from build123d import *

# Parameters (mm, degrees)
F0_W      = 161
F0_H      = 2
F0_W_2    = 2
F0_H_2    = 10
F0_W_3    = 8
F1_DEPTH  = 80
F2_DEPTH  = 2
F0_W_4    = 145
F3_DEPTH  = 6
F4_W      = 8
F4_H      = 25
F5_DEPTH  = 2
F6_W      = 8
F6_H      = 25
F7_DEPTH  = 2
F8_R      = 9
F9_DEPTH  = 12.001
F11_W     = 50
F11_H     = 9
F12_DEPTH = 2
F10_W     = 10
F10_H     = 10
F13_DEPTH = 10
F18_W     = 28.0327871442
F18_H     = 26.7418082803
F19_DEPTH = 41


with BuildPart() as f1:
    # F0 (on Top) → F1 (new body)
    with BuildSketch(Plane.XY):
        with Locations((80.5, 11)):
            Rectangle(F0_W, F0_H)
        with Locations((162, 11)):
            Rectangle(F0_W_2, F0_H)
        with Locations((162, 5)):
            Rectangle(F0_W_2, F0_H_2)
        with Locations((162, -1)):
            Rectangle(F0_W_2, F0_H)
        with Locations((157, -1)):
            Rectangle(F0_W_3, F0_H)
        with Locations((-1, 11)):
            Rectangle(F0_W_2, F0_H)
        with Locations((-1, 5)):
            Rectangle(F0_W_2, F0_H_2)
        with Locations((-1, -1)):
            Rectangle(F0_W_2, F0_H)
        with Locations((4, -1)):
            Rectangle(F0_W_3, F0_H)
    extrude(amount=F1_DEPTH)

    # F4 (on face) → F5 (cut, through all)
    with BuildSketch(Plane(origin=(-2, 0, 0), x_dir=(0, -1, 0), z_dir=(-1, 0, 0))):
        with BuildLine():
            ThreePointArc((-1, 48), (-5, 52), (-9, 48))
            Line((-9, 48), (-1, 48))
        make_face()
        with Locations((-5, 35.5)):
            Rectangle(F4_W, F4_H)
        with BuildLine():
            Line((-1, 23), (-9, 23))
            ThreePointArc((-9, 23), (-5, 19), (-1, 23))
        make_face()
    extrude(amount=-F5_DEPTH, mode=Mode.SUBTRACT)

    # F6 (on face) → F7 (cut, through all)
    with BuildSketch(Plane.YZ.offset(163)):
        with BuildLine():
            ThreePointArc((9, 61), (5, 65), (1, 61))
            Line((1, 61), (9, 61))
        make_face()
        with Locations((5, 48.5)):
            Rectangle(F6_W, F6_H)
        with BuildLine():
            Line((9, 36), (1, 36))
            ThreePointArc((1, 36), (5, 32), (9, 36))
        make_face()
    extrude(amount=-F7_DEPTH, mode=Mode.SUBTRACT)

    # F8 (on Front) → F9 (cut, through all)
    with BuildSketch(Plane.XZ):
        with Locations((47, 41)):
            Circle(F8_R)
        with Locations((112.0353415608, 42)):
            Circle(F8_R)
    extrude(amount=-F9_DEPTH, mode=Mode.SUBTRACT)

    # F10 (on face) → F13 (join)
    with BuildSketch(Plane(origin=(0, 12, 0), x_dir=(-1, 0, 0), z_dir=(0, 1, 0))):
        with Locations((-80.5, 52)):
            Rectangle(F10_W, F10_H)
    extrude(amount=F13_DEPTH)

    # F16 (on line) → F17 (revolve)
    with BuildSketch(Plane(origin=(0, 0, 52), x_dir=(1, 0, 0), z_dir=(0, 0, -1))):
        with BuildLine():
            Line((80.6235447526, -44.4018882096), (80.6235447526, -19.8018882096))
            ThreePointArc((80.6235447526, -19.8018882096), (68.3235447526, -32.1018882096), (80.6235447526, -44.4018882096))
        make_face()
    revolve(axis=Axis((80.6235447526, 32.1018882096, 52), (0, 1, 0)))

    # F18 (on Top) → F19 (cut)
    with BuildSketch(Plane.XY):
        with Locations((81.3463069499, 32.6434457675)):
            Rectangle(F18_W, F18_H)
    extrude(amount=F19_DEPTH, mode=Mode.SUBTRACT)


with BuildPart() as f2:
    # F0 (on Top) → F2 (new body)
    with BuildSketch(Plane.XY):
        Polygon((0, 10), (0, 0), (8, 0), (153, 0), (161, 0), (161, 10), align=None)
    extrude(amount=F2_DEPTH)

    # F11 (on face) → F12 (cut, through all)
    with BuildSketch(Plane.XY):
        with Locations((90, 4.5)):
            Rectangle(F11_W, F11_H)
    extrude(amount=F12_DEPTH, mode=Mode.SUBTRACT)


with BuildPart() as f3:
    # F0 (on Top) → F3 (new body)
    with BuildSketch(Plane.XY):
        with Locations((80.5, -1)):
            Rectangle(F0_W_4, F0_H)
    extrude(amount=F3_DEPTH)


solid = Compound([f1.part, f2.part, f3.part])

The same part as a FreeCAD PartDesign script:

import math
import FreeCAD as App
import Part
import Sketcher

V = App.Vector

doc = App.newDocument("Part")
body = doc.addObject("PartDesign::Body", "Body")

# Sketch on XY plane
sketch1 = body.newObject("Sketcher::SketchObject", "Sketch")
sketch1.AttachmentSupport = (doc.getObject("XY_Plane"), [""])
sketch1.MapMode = "FlatFace"
sketch1.addGeometry(Part.LineSegment(V(161, 10, 0), V(161, 0, 0)), False)
sketch1.addGeometry(Part.LineSegment(V(161, 0, 0), V(153, 0, 0)), False)
sketch1.addGeometry(Part.LineSegment(V(153, 0, 0), V(153, -2, 0)), False)
sketch1.addGeometry(Part.LineSegment(V(153, -2, 0), V(163, -2, 0)), False)
sketch1.addGeometry(Part.LineSegment(V(163, -2, 0), V(163, 12, 0)), False)
sketch1.addGeometry(Part.LineSegment(V(163, 12, 0), V(-2, 12, 0)), False)
sketch1.addGeometry(Part.LineSegment(V(-2, 12, 0), V(-2, -2, 0)), False)
sketch1.addGeometry(Part.LineSegment(V(-2, -2, 0), V(8, -2, 0)), False)
sketch1.addGeometry(Part.LineSegment(V(8, -2, 0), V(8, 0, 0)), False)
sketch1.addGeometry(Part.LineSegment(V(8, 0, 0), V(0, 0, 0)), False)
sketch1.addGeometry(Part.LineSegment(V(0, 0, 0), V(0, 10, 0)), False)
sketch1.addGeometry(Part.LineSegment(V(0, 10, 0), V(161, 10, 0)), False)
sketch1.addConstraint(Sketcher.Constraint("Coincident", 0, 2, 1, 1))
sketch1.addConstraint(Sketcher.Constraint("Coincident", 1, 2, 2, 1))
sketch1.addConstraint(Sketcher.Constraint("Coincident", 2, 2, 3, 1))
sketch1.addConstraint(Sketcher.Constraint("Coincident", 3, 2, 4, 1))
sketch1.addConstraint(Sketcher.Constraint("Coincident", 4, 2, 5, 1))
sketch1.addConstraint(Sketcher.Constraint("Coincident", 5, 2, 6, 1))
sketch1.addConstraint(Sketcher.Constraint("Coincident", 6, 2, 7, 1))
sketch1.addConstraint(Sketcher.Constraint("Coincident", 7, 2, 8, 1))
sketch1.addConstraint(Sketcher.Constraint("Coincident", 8, 2, 9, 1))
sketch1.addConstraint(Sketcher.Constraint("Coincident", 9, 2, 10, 1))
sketch1.addConstraint(Sketcher.Constraint("Coincident", 10, 2, 11, 1))
sketch1.addConstraint(Sketcher.Constraint("Coincident", 11, 2, 0, 1))
sketch1.addConstraint(Sketcher.Constraint("Vertical", 0))
sketch1.addConstraint(Sketcher.Constraint("Horizontal", 1))
sketch1.addConstraint(Sketcher.Constraint("Vertical", 2))
sketch1.addConstraint(Sketcher.Constraint("Horizontal", 3))
sketch1.addConstraint(Sketcher.Constraint("Vertical", 4))
sketch1.addConstraint(Sketcher.Constraint("Horizontal", 5))
sketch1.addConstraint(Sketcher.Constraint("Vertical", 6))
sketch1.addConstraint(Sketcher.Constraint("Horizontal", 7))
sketch1.addConstraint(Sketcher.Constraint("Vertical", 8))
sketch1.addConstraint(Sketcher.Constraint("Horizontal", 9))
sketch1.addConstraint(Sketcher.Constraint("Vertical", 10))
sketch1.addConstraint(Sketcher.Constraint("Horizontal", 11))
sketch1.addConstraint(Sketcher.Constraint("Coincident", 9, 2, -1, 1))
sketch1.addConstraint(Sketcher.Constraint("PointOnObject", 0, 2, -1))
sketch1.addConstraint(Sketcher.Constraint("Horizontal", 3, 2, 6, 2))
sketch1.addConstraint(Sketcher.Constraint("Equal", 3, 7))
sketch1.addConstraint(Sketcher.Constraint("Equal", 1, 9))
sketch1.addConstraint(Sketcher.Constraint("Equal", 7, 0))
sketch1.addConstraint(Sketcher.Constraint("DistanceX", 1, 2, 1, 1, 8.0))
sketch1.addConstraint(Sketcher.Constraint("DistanceX", 3, 1, 3, 2, 10.0))
sketch1.addConstraint(Sketcher.Constraint("DistanceX", 5, 2, 5, 1, 165.0))
sketch1.addConstraint(Sketcher.Constraint("DistanceY", 2, 2, 2, 1, 2.0))
sketch1.addConstraint(Sketcher.Constraint("DistanceY", 4, 1, 4, 2, 14.0))
pad1 = body.newObject("PartDesign::Pad", "Pad")
pad1.Profile = sketch1
pad1.Length = 80

# Sketch on YZ plane
sketch2 = body.newObject("Sketcher::SketchObject", "Sketch001")
sketch2.AttachmentSupport = (doc.getObject("YZ_Plane"), [""])
sketch2.MapMode = "FlatFace"
sketch2.AttachmentOffset = App.Placement(V(0, 0, -2), App.Rotation())
sketch2.addGeometry(Part.ArcOfCircle(Part.Circle(V(5, 48, 0), V(0, 0, 1), 4), math.radians(0), math.radians(180)), False)
sketch2.addGeometry(Part.LineSegment(V(9, 48, 0), V(9, 23, 0)), False)
sketch2.addGeometry(Part.ArcOfCircle(Part.Circle(V(5, 23, 0), V(0, 0, 1), 4), math.radians(180), math.radians(360)), False)
sketch2.addGeometry(Part.LineSegment(V(1, 23, 0), V(1, 48, 0)), False)
sketch2.addConstraint(Sketcher.Constraint("Tangent", 0, 1, 1, 1))
sketch2.addConstraint(Sketcher.Constraint("Tangent", 1, 2, 2, 2))
sketch2.addConstraint(Sketcher.Constraint("Tangent", 2, 1, 3, 1))
sketch2.addConstraint(Sketcher.Constraint("Tangent", 3, 2, 0, 2))
sketch2.addConstraint(Sketcher.Constraint("Vertical", 1))
sketch2.addConstraint(Sketcher.Constraint("Vertical", 3))
sketch2.addConstraint(Sketcher.Constraint("Radius", 0, 4.0))
sketch2.addConstraint(Sketcher.Constraint("DistanceY", 1, 2, 1, 1, 25.0))
sketch2.addConstraint(Sketcher.Constraint("DistanceX", -1, 1, 0, 3, 5.0))
sketch2.addConstraint(Sketcher.Constraint("DistanceY", -1, 1, 0, 3, 48.0))
pocket1 = body.newObject("PartDesign::Pocket", "Pocket")
pocket1.Profile = sketch2
pocket1.Length = 2
pocket1.Reversed = True

# Sketch on YZ plane
sketch3 = body.newObject("Sketcher::SketchObject", "Sketch002")
sketch3.AttachmentSupport = (doc.getObject("YZ_Plane"), [""])
sketch3.MapMode = "FlatFace"
sketch3.AttachmentOffset = App.Placement(V(0, 0, 163), App.Rotation())
sketch3.addGeometry(Part.ArcOfCircle(Part.Circle(V(5, 61, 0), V(0, 0, 1), 4), math.radians(0), math.radians(180)), False)
sketch3.addGeometry(Part.LineSegment(V(1, 61, 0), V(1, 36, 0)), False)
sketch3.addGeometry(Part.ArcOfCircle(Part.Circle(V(5, 36, 0), V(0, 0, 1), 4), math.radians(180), math.radians(360)), False)
sketch3.addGeometry(Part.LineSegment(V(9, 36, 0), V(9, 61, 0)), False)
sketch3.addConstraint(Sketcher.Constraint("Tangent", 0, 2, 1, 1))
sketch3.addConstraint(Sketcher.Constraint("Tangent", 1, 2, 2, 1))
sketch3.addConstraint(Sketcher.Constraint("Tangent", 2, 2, 3, 1))
sketch3.addConstraint(Sketcher.Constraint("Tangent", 3, 2, 0, 1))
sketch3.addConstraint(Sketcher.Constraint("Vertical", 1))
sketch3.addConstraint(Sketcher.Constraint("Vertical", 3))
sketch3.addConstraint(Sketcher.Constraint("Radius", 0, 4.0))
sketch3.addConstraint(Sketcher.Constraint("DistanceY", 1, 2, 1, 1, 25.0))
sketch3.addConstraint(Sketcher.Constraint("DistanceX", -1, 1, 0, 3, 5.0))
sketch3.addConstraint(Sketcher.Constraint("DistanceY", -1, 1, 0, 3, 61.0))
pocket2 = body.newObject("PartDesign::Pocket", "Pocket001")
pocket2.Profile = sketch3
pocket2.Length = 2

# Sketch on XZ plane
sketch4 = body.newObject("Sketcher::SketchObject", "Sketch003")
sketch4.AttachmentSupport = (doc.getObject("XZ_Plane"), [""])
sketch4.MapMode = "FlatFace"
sketch4.addGeometry(Part.Circle(V(47, 41, 0), V(0, 0, 1), 9), False)
sketch4.addGeometry(Part.Circle(V(112.035342, 42, 0), V(0, 0, 1), 9), False)
sketch4.addConstraint(Sketcher.Constraint("Equal", 0, 1))
sketch4.addConstraint(Sketcher.Constraint("Diameter", 0, 18.0))
sketch4.addConstraint(Sketcher.Constraint("DistanceX", -1, 1, 0, 3, 47.0))
sketch4.addConstraint(Sketcher.Constraint("DistanceY", -1, 1, 0, 3, 41.0))
sketch4.addConstraint(Sketcher.Constraint("DistanceY", -1, 1, 1, 3, 42.0))
sketch4.addConstraint(Sketcher.Constraint("DistanceX", -1, 1, 1, 3, 112.035342))
pocket3 = body.newObject("PartDesign::Pocket", "Pocket002")
pocket3.Profile = sketch4
pocket3.Type = "ThroughAll"

# Sketch on XZ plane
sketch5 = body.newObject("Sketcher::SketchObject", "Sketch004")
sketch5.AttachmentSupport = (doc.getObject("XZ_Plane"), [""])
sketch5.MapMode = "FlatFace"
sketch5.AttachmentOffset = App.Placement(V(0, 0, -12), App.Rotation())
sketch5.addGeometry(Part.LineSegment(V(85.5, 57, 0), V(85.5, 47, 0)), False)
sketch5.addGeometry(Part.LineSegment(V(85.5, 47, 0), V(75.5, 47, 0)), False)
sketch5.addGeometry(Part.LineSegment(V(75.5, 47, 0), V(75.5, 57, 0)), False)
sketch5.addGeometry(Part.LineSegment(V(75.5, 57, 0), V(85.5, 57, 0)), False)
sketch5.addConstraint(Sketcher.Constraint("Coincident", 0, 2, 1, 1))
sketch5.addConstraint(Sketcher.Constraint("Coincident", 1, 2, 2, 1))
sketch5.addConstraint(Sketcher.Constraint("Coincident", 2, 2, 3, 1))
sketch5.addConstraint(Sketcher.Constraint("Coincident", 3, 2, 0, 1))
sketch5.addConstraint(Sketcher.Constraint("Vertical", 0))
sketch5.addConstraint(Sketcher.Constraint("Horizontal", 1))
sketch5.addConstraint(Sketcher.Constraint("Vertical", 2))
sketch5.addConstraint(Sketcher.Constraint("Horizontal", 3))
sketch5.addConstraint(Sketcher.Constraint("Equal", 3, 0))
sketch5.addConstraint(Sketcher.Constraint("DistanceX", 1, 2, 1, 1, 10.0))
sketch5.addConstraint(Sketcher.Constraint("DistanceY", -1, 1, 0, 2, 47.0))
sketch5.addConstraint(Sketcher.Constraint("DistanceX", -1, 1, 0, 2, 85.5))
pad2 = body.newObject("PartDesign::Pad", "Pad001")
pad2.Profile = sketch5
pad2.Length = 10
pad2.Reversed = True

# Sketch on XY plane
sketch6 = body.newObject("Sketcher::SketchObject", "Sketch005")
sketch6.AttachmentSupport = (doc.getObject("XY_Plane"), [""])
sketch6.MapMode = "FlatFace"
sketch6.AttachmentOffset = App.Placement(V(0, 0, 52), App.Rotation())
sketch6.addGeometry(Part.LineSegment(V(80.623545, 44.401888, 0), V(80.623545, 19.801888, 0)), False)
sketch6.addGeometry(Part.ArcOfCircle(Part.Circle(V(80.623545, 32.101888, 0), V(0, 0, 1), 12.3), math.radians(90), math.radians(270)), False)
sketch6.addGeometry(Part.LineSegment(V(80.623545, 19.801888, 0), V(80.623545, 44.401888, 0)), True)  # axis
sketch6.addConstraint(Sketcher.Constraint("Coincident", 0, 1, 1, 1))
sketch6.addConstraint(Sketcher.Constraint("Coincident", 1, 2, 0, 2))
sketch6.addConstraint(Sketcher.Constraint("Vertical", 0))
sketch6.addConstraint(Sketcher.Constraint("Vertical", 2))
sketch6.addConstraint(Sketcher.Constraint("Coincident", 2, 1, 1, 2))
sketch6.addConstraint(Sketcher.Constraint("Vertical", 1, 3, 0, 1))
sketch6.addConstraint(Sketcher.Constraint("Equal", 0, 2))
sketch6.addConstraint(Sketcher.Constraint("Radius", 1, 12.3))
sketch6.addConstraint(Sketcher.Constraint("DistanceY", -1, 1, 1, 3, 32.101888))
sketch6.addConstraint(Sketcher.Constraint("DistanceX", -1, 1, 1, 3, 80.623545))
revolution = body.newObject("PartDesign::Revolution", "Revolution")
revolution.Profile = sketch6
revolution.ReferenceAxis = (sketch6, ["Axis0"])
revolution.Angle = 360

# Sketch on XY plane
sketch7 = body.newObject("Sketcher::SketchObject", "Sketch006")
sketch7.AttachmentSupport = (doc.getObject("XY_Plane"), [""])
sketch7.MapMode = "FlatFace"
sketch7.addGeometry(Part.LineSegment(V(67.329913, 46.01435, 0), V(67.329913, 19.272542, 0)), False)
sketch7.addGeometry(Part.LineSegment(V(67.329913, 19.272542, 0), V(95.362701, 19.272542, 0)), False)
sketch7.addGeometry(Part.LineSegment(V(95.362701, 19.272542, 0), V(95.362701, 46.01435, 0)), False)
sketch7.addGeometry(Part.LineSegment(V(95.362701, 46.01435, 0), V(67.329913, 46.01435, 0)), False)
sketch7.addConstraint(Sketcher.Constraint("Coincident", 0, 2, 1, 1))
sketch7.addConstraint(Sketcher.Constraint("Coincident", 1, 2, 2, 1))
sketch7.addConstraint(Sketcher.Constraint("Coincident", 2, 2, 3, 1))
sketch7.addConstraint(Sketcher.Constraint("Coincident", 3, 2, 0, 1))
sketch7.addConstraint(Sketcher.Constraint("Vertical", 0))
sketch7.addConstraint(Sketcher.Constraint("Horizontal", 1))
sketch7.addConstraint(Sketcher.Constraint("Vertical", 2))
sketch7.addConstraint(Sketcher.Constraint("Horizontal", 3))
sketch7.addConstraint(Sketcher.Constraint("DistanceY", 0, 2, 0, 1, 26.741808))
sketch7.addConstraint(Sketcher.Constraint("DistanceX", -1, 1, 1, 2, 95.362701))
sketch7.addConstraint(Sketcher.Constraint("DistanceX", 1, 1, 1, 2, 28.032787))
sketch7.addConstraint(Sketcher.Constraint("DistanceY", -1, 1, 0, 2, 19.272542))
pocket4 = body.newObject("PartDesign::Pocket", "Pocket003")
pocket4.Profile = sketch7
pocket4.Length = 41
pocket4.Reversed = True
body2 = doc.addObject("PartDesign::Body", "Body001")

# Sketch on XY plane
sketch8 = body2.newObject("Sketcher::SketchObject", "Sketch007")
sketch8.AttachmentSupport = (doc.getObject("XY_Plane001"), [""])
sketch8.MapMode = "FlatFace"
sketch8.addGeometry(Part.LineSegment(V(0, 10, 0), V(0, 0, 0)), False)
sketch8.addGeometry(Part.LineSegment(V(0, 0, 0), V(161, 0, 0)), False)
sketch8.addGeometry(Part.LineSegment(V(161, 0, 0), V(161, 10, 0)), False)
sketch8.addGeometry(Part.LineSegment(V(161, 10, 0), V(0, 10, 0)), False)
sketch8.addConstraint(Sketcher.Constraint("Coincident", 0, 2, 1, 1))
sketch8.addConstraint(Sketcher.Constraint("Coincident", 1, 2, 2, 1))
sketch8.addConstraint(Sketcher.Constraint("Coincident", 2, 2, 3, 1))
sketch8.addConstraint(Sketcher.Constraint("Coincident", 3, 2, 0, 1))
sketch8.addConstraint(Sketcher.Constraint("Vertical", 0))
sketch8.addConstraint(Sketcher.Constraint("Horizontal", 1))
sketch8.addConstraint(Sketcher.Constraint("Vertical", 2))
sketch8.addConstraint(Sketcher.Constraint("Horizontal", 3))
sketch8.addConstraint(Sketcher.Constraint("Coincident", 0, 2, -1, 1))
sketch8.addConstraint(Sketcher.Constraint("DistanceX", 1, 1, 1, 2, 161.0))
sketch8.addConstraint(Sketcher.Constraint("DistanceY", 0, 2, 0, 1, 10.0))
pad3 = body2.newObject("PartDesign::Pad", "Pad002")
pad3.Profile = sketch8
pad3.Length = 2

# Sketch on XY plane
sketch9 = body2.newObject("Sketcher::SketchObject", "Sketch008")
sketch9.AttachmentSupport = (doc.getObject("XY_Plane001"), [""])
sketch9.MapMode = "FlatFace"
sketch9.addGeometry(Part.LineSegment(V(65, 9, 0), V(65, 0, 0)), False)
sketch9.addGeometry(Part.LineSegment(V(65, 0, 0), V(115, 0, 0)), False)
sketch9.addGeometry(Part.LineSegment(V(115, 0, 0), V(115, 9, 0)), False)
sketch9.addGeometry(Part.LineSegment(V(115, 9, 0), V(65, 9, 0)), False)
sketch9.addConstraint(Sketcher.Constraint("Coincident", 0, 2, 1, 1))
sketch9.addConstraint(Sketcher.Constraint("Coincident", 1, 2, 2, 1))
sketch9.addConstraint(Sketcher.Constraint("Coincident", 2, 2, 3, 1))
sketch9.addConstraint(Sketcher.Constraint("Coincident", 3, 2, 0, 1))
sketch9.addConstraint(Sketcher.Constraint("Vertical", 0))
sketch9.addConstraint(Sketcher.Constraint("Horizontal", 1))
sketch9.addConstraint(Sketcher.Constraint("Vertical", 2))
sketch9.addConstraint(Sketcher.Constraint("Horizontal", 3))
sketch9.addConstraint(Sketcher.Constraint("PointOnObject", 0, 2, -1))
sketch9.addConstraint(Sketcher.Constraint("DistanceX", 1, 1, 1, 2, 50.0))
sketch9.addConstraint(Sketcher.Constraint("DistanceY", 0, 2, 0, 1, 9.0))
sketch9.addConstraint(Sketcher.Constraint("DistanceX", -1, 1, 0, 2, 65.0))
pocket5 = body2.newObject("PartDesign::Pocket", "Pocket004")
pocket5.Profile = sketch9
pocket5.Type = "ThroughAll"
pocket5.Reversed = True
body3 = doc.addObject("PartDesign::Body", "Body002")

# Sketch on XY plane
sketch10 = body3.newObject("Sketcher::SketchObject", "Sketch009")
sketch10.AttachmentSupport = (doc.getObject("XY_Plane002"), [""])
sketch10.MapMode = "FlatFace"
sketch10.addGeometry(Part.LineSegment(V(8, 0, 0), V(8, -2, 0)), False)
sketch10.addGeometry(Part.LineSegment(V(8, -2, 0), V(153, -2, 0)), False)
sketch10.addGeometry(Part.LineSegment(V(153, -2, 0), V(153, 0, 0)), False)
sketch10.addGeometry(Part.LineSegment(V(153, 0, 0), V(8, 0, 0)), False)
sketch10.addConstraint(Sketcher.Constraint("Coincident", 0, 2, 1, 1))
sketch10.addConstraint(Sketcher.Constraint("Coincident", 1, 2, 2, 1))
sketch10.addConstraint(Sketcher.Constraint("Coincident", 2, 2, 3, 1))
sketch10.addConstraint(Sketcher.Constraint("Coincident", 3, 2, 0, 1))
sketch10.addConstraint(Sketcher.Constraint("Vertical", 0))
sketch10.addConstraint(Sketcher.Constraint("Horizontal", 1))
sketch10.addConstraint(Sketcher.Constraint("Vertical", 2))
sketch10.addConstraint(Sketcher.Constraint("Horizontal", 3))
sketch10.addConstraint(Sketcher.Constraint("PointOnObject", 2, 2, -1))
sketch10.addConstraint(Sketcher.Constraint("DistanceX", 1, 1, 1, 2, 145.0))
sketch10.addConstraint(Sketcher.Constraint("DistanceY", 0, 2, 0, 1, 2.0))
sketch10.addConstraint(Sketcher.Constraint("DistanceX", -1, 1, 0, 2, 8.0))
pad4 = body3.newObject("PartDesign::Pad", "Pad003")
pad4.Profile = sketch10
pad4.Length = 6

doc.recompute()
